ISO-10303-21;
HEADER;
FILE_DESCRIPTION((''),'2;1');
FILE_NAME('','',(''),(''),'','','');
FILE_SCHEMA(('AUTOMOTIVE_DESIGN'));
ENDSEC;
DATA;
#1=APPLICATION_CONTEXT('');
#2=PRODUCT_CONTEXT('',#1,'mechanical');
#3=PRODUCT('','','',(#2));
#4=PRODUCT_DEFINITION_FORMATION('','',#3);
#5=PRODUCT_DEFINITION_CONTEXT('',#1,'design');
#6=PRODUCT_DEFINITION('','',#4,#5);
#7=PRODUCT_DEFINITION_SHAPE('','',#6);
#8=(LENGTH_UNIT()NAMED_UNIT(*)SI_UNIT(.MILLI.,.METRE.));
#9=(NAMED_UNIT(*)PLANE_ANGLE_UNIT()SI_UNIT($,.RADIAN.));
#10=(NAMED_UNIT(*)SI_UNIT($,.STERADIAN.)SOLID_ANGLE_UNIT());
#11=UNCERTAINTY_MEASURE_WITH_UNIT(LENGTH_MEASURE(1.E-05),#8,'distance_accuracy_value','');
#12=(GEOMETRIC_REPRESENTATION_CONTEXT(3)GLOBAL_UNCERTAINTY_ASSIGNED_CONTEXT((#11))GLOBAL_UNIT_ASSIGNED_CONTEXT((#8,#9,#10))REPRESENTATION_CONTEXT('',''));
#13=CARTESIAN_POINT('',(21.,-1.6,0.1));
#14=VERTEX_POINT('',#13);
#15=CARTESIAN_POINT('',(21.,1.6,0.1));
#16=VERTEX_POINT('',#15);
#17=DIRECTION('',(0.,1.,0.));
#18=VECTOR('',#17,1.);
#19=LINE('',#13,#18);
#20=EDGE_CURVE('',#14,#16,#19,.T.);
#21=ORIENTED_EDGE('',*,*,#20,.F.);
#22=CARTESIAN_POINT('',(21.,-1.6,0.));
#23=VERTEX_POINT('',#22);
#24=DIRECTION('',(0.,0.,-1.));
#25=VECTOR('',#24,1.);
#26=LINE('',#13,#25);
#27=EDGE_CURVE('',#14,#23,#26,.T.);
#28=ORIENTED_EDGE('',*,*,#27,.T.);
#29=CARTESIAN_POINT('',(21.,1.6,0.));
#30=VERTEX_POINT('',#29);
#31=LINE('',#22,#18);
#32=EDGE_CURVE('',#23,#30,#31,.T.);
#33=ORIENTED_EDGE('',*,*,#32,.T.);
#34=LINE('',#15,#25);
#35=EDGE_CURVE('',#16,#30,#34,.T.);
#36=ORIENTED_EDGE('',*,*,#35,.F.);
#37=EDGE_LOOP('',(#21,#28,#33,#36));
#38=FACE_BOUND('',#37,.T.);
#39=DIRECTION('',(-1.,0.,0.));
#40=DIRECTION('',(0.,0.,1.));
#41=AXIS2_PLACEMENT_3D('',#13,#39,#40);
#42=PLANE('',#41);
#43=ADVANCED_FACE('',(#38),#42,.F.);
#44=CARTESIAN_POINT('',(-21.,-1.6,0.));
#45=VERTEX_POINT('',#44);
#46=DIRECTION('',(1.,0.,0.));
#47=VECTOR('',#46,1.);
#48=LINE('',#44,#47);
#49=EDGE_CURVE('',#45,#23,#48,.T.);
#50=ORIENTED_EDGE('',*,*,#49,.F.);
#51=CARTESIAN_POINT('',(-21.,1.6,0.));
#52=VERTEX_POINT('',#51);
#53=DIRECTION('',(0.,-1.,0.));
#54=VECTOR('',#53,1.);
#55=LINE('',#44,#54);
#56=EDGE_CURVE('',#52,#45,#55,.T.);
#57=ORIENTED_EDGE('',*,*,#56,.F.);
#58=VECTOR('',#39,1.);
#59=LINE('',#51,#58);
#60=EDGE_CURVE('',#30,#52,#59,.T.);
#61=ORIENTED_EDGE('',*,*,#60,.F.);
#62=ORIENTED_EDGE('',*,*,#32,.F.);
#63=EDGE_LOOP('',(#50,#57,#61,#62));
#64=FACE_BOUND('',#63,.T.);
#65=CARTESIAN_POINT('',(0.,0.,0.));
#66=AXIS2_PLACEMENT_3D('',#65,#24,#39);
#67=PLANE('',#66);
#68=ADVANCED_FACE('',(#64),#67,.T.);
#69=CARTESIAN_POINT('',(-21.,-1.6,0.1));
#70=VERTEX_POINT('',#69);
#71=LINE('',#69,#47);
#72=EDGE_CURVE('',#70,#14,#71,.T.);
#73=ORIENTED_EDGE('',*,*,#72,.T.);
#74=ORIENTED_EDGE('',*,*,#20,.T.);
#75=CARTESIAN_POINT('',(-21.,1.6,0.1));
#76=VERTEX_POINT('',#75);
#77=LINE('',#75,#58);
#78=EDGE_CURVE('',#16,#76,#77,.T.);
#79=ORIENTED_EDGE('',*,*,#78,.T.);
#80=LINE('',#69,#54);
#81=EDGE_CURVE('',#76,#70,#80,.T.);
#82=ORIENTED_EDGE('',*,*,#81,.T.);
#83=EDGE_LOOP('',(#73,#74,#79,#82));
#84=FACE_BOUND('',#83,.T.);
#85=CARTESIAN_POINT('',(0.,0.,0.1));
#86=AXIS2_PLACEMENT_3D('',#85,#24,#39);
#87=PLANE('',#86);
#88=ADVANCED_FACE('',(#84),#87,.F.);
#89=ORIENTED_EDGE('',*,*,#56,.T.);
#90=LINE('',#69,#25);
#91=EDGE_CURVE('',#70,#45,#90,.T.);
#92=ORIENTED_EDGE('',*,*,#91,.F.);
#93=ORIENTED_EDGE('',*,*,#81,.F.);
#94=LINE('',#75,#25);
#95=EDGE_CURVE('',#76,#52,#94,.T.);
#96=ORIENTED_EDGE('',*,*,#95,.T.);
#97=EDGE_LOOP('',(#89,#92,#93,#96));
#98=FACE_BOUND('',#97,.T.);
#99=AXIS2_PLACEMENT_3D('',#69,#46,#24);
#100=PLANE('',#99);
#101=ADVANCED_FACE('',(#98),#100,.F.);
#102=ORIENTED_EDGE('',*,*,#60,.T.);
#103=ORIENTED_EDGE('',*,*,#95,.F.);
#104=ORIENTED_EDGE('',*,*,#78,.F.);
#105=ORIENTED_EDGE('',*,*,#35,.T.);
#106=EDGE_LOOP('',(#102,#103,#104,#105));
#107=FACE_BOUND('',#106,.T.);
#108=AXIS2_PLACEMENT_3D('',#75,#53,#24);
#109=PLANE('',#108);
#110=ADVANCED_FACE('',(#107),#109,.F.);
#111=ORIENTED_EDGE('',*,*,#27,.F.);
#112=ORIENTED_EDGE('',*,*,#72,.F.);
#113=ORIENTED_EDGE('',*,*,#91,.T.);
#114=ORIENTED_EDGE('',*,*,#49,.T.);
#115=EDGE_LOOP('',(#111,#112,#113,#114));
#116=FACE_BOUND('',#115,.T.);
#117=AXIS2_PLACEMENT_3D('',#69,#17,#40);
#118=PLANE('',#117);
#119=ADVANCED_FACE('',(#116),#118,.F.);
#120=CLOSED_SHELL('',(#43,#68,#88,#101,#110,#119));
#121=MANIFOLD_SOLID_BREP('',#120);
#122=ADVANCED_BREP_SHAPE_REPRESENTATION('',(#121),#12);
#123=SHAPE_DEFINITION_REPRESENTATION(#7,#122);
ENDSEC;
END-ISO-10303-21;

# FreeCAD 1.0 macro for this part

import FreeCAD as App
import Part
import Sketcher
from FreeCAD import Vector


def add_polygon(sketch, points):
    """Adds a closed chain of lines whose ends are joined by coincident constraints."""
    first, n = sketch.GeometryCount, len(points)
    for a, b in zip(points, points[1:] + points[:1]):
        sketch.addGeometry(Part.LineSegment(App.Vector(*a, 0), App.Vector(*b, 0)), False)
    for i in range(n):
        sketch.addConstraint(Sketcher.Constraint("Coincident", first + i, 2, first + (i + 1) % n, 1))

doc = App.newDocument("Part")
body = doc.addObject("PartDesign::Body", "Body")

sketch1 = doc.addObject("Sketcher::SketchObject", "Sketch")
body.addObject(sketch1)
sketch1.AttachmentSupport = (doc.XY_Plane, [""])
sketch1.MapMode = "FlatFace"
add_polygon(sketch1, [(-21, 1.6), (-21, -1.6), (21, -1.6), (21, 1.6)])
sketch1.addConstraint([
    Sketcher.Constraint("Vertical", 0),
    Sketcher.Constraint("Horizontal", 1),
    Sketcher.Constraint("Vertical", 2),
    Sketcher.Constraint("Horizontal", 3),
    Sketcher.Constraint("Symmetric", 0, 2, 2, 2, -1, 1),
    Sketcher.Constraint("DistanceX", 1, 1, 1, 2, 42.0),
    Sketcher.Constraint("DistanceY", 0, 2, 0, 1, 3.2),
])
pad1 = doc.addObject("PartDesign::Pad", "Pad")
body.addObject(pad1)
pad1.Profile = sketch1
pad1.Length = 0.1

doc.recompute()
